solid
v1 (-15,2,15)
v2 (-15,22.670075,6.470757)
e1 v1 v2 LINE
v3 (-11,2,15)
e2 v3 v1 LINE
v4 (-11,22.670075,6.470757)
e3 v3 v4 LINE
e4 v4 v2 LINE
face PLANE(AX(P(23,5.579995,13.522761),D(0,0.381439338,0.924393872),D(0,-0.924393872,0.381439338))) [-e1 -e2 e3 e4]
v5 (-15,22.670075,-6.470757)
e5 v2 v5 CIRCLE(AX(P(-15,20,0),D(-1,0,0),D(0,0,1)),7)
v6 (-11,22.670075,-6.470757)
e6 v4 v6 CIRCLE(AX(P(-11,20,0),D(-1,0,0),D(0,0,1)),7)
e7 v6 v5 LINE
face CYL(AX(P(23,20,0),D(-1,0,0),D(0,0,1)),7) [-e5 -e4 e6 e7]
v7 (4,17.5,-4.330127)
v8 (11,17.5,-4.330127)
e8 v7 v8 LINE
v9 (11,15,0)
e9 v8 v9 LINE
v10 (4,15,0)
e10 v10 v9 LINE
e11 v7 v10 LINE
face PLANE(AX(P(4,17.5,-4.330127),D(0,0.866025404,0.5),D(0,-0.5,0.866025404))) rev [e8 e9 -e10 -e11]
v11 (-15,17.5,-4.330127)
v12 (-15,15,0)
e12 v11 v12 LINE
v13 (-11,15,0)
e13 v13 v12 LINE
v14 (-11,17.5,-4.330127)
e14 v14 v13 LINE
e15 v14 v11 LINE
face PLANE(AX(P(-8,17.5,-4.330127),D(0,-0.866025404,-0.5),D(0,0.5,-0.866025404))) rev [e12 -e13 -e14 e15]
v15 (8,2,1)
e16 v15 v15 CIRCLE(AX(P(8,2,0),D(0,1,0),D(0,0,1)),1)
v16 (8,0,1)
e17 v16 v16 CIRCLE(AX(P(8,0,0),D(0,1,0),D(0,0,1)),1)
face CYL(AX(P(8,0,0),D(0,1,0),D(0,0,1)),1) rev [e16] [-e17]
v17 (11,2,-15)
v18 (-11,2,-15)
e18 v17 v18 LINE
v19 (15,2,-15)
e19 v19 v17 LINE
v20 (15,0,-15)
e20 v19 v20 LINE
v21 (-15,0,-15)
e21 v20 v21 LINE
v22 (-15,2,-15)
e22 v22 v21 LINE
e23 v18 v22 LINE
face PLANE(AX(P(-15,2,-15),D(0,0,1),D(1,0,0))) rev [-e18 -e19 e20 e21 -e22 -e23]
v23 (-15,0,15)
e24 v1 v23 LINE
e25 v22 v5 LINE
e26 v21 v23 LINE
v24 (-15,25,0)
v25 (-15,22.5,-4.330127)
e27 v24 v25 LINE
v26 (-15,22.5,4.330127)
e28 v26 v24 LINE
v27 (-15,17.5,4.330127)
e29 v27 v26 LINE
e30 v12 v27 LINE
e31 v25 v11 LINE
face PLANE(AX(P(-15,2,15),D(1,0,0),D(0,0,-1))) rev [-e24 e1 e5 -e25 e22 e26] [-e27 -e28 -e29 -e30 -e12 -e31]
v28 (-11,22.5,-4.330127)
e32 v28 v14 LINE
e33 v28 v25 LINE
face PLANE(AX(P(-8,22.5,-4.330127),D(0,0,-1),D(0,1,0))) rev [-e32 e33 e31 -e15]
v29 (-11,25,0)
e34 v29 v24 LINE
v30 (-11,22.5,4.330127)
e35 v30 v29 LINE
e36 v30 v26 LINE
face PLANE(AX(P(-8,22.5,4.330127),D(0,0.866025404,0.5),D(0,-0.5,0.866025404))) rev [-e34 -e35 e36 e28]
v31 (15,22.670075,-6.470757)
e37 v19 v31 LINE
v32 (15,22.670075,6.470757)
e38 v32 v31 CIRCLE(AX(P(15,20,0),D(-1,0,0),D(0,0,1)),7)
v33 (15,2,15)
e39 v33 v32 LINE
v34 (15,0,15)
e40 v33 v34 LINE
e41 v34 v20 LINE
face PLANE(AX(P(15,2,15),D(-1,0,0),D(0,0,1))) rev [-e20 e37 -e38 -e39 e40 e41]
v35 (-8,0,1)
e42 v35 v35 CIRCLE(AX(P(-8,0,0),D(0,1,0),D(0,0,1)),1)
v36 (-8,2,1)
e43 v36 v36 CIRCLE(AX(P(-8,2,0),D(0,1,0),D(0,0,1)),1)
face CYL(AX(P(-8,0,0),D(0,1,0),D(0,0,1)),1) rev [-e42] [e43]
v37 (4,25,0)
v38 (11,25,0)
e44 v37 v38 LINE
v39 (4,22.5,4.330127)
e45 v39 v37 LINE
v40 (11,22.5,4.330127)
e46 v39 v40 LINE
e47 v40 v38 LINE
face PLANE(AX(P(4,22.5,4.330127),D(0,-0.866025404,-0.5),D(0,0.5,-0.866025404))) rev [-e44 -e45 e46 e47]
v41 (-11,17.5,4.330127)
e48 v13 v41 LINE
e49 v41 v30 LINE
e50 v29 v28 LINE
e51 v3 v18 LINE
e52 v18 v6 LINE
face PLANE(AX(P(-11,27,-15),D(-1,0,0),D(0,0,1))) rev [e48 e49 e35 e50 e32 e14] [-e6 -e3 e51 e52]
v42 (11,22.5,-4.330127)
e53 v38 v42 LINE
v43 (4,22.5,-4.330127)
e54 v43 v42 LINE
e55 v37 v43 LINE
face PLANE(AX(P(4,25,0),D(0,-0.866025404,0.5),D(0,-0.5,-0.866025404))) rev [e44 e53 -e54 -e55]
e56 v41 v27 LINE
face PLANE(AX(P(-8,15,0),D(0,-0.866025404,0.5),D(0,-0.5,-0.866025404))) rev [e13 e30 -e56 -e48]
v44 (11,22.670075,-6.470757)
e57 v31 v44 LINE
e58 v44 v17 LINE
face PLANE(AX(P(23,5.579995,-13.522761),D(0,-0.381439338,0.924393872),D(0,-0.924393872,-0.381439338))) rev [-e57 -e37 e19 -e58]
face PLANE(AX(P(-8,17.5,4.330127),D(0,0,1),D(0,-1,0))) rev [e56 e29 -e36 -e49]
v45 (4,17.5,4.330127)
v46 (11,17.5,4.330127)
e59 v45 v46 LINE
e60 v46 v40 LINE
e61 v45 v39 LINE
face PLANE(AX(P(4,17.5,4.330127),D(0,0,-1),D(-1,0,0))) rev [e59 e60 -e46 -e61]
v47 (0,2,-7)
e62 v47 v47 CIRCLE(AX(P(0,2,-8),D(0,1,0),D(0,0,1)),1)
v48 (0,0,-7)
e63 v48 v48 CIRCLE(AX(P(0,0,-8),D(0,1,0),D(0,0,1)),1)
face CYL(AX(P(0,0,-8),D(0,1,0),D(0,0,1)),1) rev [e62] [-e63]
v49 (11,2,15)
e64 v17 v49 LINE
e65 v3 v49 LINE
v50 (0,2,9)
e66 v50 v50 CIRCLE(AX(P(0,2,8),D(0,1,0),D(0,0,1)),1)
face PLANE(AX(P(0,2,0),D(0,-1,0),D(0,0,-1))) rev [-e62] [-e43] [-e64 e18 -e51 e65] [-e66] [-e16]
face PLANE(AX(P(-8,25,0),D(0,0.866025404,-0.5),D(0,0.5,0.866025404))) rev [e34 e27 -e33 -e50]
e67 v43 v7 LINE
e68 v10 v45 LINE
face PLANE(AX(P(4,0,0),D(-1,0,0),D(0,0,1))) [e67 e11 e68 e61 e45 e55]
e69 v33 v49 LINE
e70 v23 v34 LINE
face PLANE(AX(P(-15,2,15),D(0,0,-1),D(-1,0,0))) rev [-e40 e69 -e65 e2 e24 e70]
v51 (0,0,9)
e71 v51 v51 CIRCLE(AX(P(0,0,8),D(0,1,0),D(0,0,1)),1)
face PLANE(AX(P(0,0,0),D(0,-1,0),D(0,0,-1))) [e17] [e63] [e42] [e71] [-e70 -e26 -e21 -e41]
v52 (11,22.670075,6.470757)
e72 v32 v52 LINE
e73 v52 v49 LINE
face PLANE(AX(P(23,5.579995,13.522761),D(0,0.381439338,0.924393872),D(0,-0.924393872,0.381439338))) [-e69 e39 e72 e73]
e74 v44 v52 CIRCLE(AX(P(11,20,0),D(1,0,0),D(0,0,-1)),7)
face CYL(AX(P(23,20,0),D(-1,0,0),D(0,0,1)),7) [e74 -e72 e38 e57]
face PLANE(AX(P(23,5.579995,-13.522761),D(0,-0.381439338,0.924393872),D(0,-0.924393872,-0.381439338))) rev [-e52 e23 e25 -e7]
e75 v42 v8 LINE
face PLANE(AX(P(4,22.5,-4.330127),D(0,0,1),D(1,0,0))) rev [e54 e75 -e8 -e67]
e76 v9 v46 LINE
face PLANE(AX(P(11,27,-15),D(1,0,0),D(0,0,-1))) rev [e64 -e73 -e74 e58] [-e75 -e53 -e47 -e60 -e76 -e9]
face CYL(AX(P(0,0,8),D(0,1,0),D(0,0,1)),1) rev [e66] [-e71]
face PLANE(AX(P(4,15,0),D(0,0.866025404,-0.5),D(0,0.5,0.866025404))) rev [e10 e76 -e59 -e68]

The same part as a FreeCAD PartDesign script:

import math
import FreeCAD as App
import Part
import Sketcher
Q = App.Units.Quantity


def add_polygon(sketch, points):
    """Adds a closed chain of lines whose ends are joined by coincident constraints."""
    first, n = sketch.GeometryCount, len(points)
    for a, b in zip(points, points[1:] + points[:1]):
        sketch.addGeometry(Part.LineSegment(App.Vector(*a, 0), App.Vector(*b, 0)), False)
    for i in range(n):
        sketch.addConstraint(Sketcher.Constraint("Coincident", first + i, 2, first + (i + 1) % n, 1))

doc = App.newDocument("Part")
body = doc.addObject("PartDesign::Body", "Body")

# Sketch on XZ plane
sketch1 = body.newObject("Sketcher::SketchObject", "Sketch")
sketch1.AttachmentSupport = (doc.getObject("XZ_Plane"), [""])
sketch1.MapMode = "FlatFace"
add_polygon(sketch1, [(-15, -15), (-15, 15), (15, 15), (15, -15)])  # lines 0-3
sketch1.addConstraint([
    Sketcher.Constraint("Vertical", 0),
    Sketcher.Constraint("Horizontal", 1),
    Sketcher.Constraint("Vertical", 2),
    Sketcher.Constraint("Horizontal", 3),
    Sketcher.Constraint("Symmetric", 0, 2, 2, 2, -1, 1),
    Sketcher.Constraint("Equal", 3, 0),
    Sketcher.Constraint("DistanceX", 1, 1, 1, 2, Q("30 mm")),
])
pad1 = body.newObject("PartDesign::Pad", "Pad")
pad1.Profile = sketch1
pad1.Length = 2
pad1.Reversed = True

# Sketch on XZ plane
sketch2 = body.newObject("Sketcher::SketchObject", "Sketch001")
sketch2.AttachmentSupport = (doc.getObject("XZ_Plane"), [""])
sketch2.MapMode = "FlatFace"
sketch2.AttachmentOffset = App.Placement(App.Vector(0, 0, -2), App.Rotation())
sketch2.addGeometry([
    Part.Circle(App.Vector(0, -8, 0), App.Vector(0, 0, 1), 1),
    Part.Circle(App.Vector(8, 0, 0), App.Vector(0, 0, 1), 1),
    Part.Circle(App.Vector(0, 8, 0), App.Vector(0, 0, 1), 1),
    Part.Circle(App.Vector(-8, 0, 0), App.Vector(0, 0, 1), 1),
], False)
sketch2.addConstraint([
    Sketcher.Constraint("Equal", 0, 1),
    Sketcher.Constraint("Equal", 1, 2),
    Sketcher.Constraint("Equal", 2, 3),
    Sketcher.Constraint("Symmetric", 0, 3, 2, 3, -1, 1),
    Sketcher.Constraint("Symmetric", 1, 3, 3, 3, -1, 1),
    Sketcher.Constraint("PointOnObject", 0, 3, -2),
    Sketcher.Constraint("PointOnObject", 1, 3, -1),
    Sketcher.Constraint("Diameter", 0, Q("2 mm")),
    Sketcher.Constraint("DistanceY", 0, 3, -1, 1, Q("8 mm")),
    Sketcher.Constraint("DistanceX", -1, 1, 1, 3, Q("8 mm")),
])
pocket1 = body.newObject("PartDesign::Pocket", "Pocket")
pocket1.Profile = sketch2
pocket1.Length = 2
pocket1.Reversed = True

# Sketch on XZ plane
sketch3 = body.newObject("Sketcher::SketchObject", "Sketch002")
sketch3.AttachmentSupport = (doc.getObject("XZ_Plane"), [""])
sketch3.MapMode = "FlatFace"
sketch3.AttachmentOffset = App.Placement(App.Vector(0, 0, -2), App.Rotation())
add_polygon(sketch3, [(-15, -15), (-15, 15), (-11, 15), (-11, -15)])  # lines 0-3
add_polygon(sketch3, [(11, -15), (11, 15), (15, 15), (15, -15)])  # lines 4-7
sketch3.addConstraint([
    Sketcher.Constraint("Vertical", 0),
    Sketcher.Constraint("Horizontal", 1),
    Sketcher.Constraint("Vertical", 2),
    Sketcher.Constraint("Horizontal", 3),
    Sketcher.Constraint("Vertical", 4),
    Sketcher.Constraint("Horizontal", 5),
    Sketcher.Constraint("Vertical", 6),
    Sketcher.Constraint("Horizontal", 7),
    Sketcher.Constraint("Symmetric", 2, 2, 4, 2, -1, 1),
    Sketcher.Constraint("Symmetric", 0, 2, 6, 2, -1, 1),
    Sketcher.Constraint("Horizontal", 1, 2, 4, 2),
    Sketcher.Constraint("DistanceX", 1, 1, 1, 2, Q("4 mm")),
    Sketcher.Constraint("DistanceY", 0, 1, 0, 2, Q("30 mm")),
    Sketcher.Constraint("DistanceX", 0, 2, -1, 1, Q("15 mm")),
])
pad2 = body.newObject("PartDesign::Pad", "Pad001")
pad2.Profile = sketch3
pad2.Length = 25
pad2.Reversed = True

# Sketch on YZ plane
sketch4 = body.newObject("Sketcher::SketchObject", "Sketch003")
sketch4.AttachmentSupport = (doc.getObject("YZ_Plane"), [""])
sketch4.MapMode = "FlatFace"
sketch4.AttachmentOffset = App.Placement(App.Vector(0, 0, -15), App.Rotation())
sketch4.addGeometry([
    Part.LineSegment(App.Vector(27, 15, 0), App.Vector(27, 0, 0)),  # 0
    Part.ArcOfCircle(Part.Circle(App.Vector(20, 0, 0), App.Vector(0, 0, 1), 7), math.radians(0), math.radians(68)),  # 1
    Part.LineSegment(App.Vector(23, 6, 0), App.Vector(2, 15, 0)),  # 2
    Part.LineSegment(App.Vector(2, 15, 0), App.Vector(27, 15, 0)),  # 3
    Part.ArcOfCircle(Part.Circle(App.Vector(20, 0, 0), App.Vector(0, 0, 1), 7), math.radians(-68), math.radians(0)),  # 4
    Part.LineSegment(App.Vector(27, 0, 0), App.Vector(27, -15, 0)),  # 5
    Part.LineSegment(App.Vector(27, -15, 0), App.Vector(2, -15, 0)),  # 6
    Part.LineSegment(App.Vector(2, -15, 0), App.Vector(23, -6, 0)),  # 7
], False)
sketch4.addConstraint([
    Sketcher.Constraint("Tangent", 0, 2, 1, 1),
    Sketcher.Constraint("Tangent", 1, 2, 2, 1),
    Sketcher.Constraint("Coincident", 2, 2, 3, 1),
    Sketcher.Constraint("Coincident", 3, 2, 0, 1),
    Sketcher.Constraint("Tangent", 4, 2, 5, 1),
    Sketcher.Constraint("Coincident", 5, 2, 6, 1),
    Sketcher.Constraint("Coincident", 6, 2, 7, 1),
    Sketcher.Constraint("Tangent", 7, 2, 4, 1),
    Sketcher.Constraint("Vertical", 0),
    Sketcher.Constraint("Horizontal", 3),
    Sketcher.Constraint("Vertical", 5),
    Sketcher.Constraint("Horizontal", 6),
    Sketcher.Constraint("Coincident", 4, 3, 1, 3),
    Sketcher.Constraint("Equal", 1, 4),
    Sketcher.Constraint("Symmetric", 2, 2, 6, 2, -1),
    Sketcher.Constraint("PointOnObject", 1, 3, -1),
    Sketcher.Constraint("Radius", 1, Q("7 mm")),
    Sketcher.Constraint("DistanceX", 3, 1, 3, 2, Q("25 mm")),
    Sketcher.Constraint("DistanceY", 0, 2, 0, 1, Q("15 mm")),
    Sketcher.Constraint("DistanceX", -1, 1, 1, 3, Q("20 mm")),
])
pocket2 = body.newObject("PartDesign::Pocket", "Pocket001")
pocket2.Profile = sketch4
pocket2.Length = 38
pocket2.Reversed = True

# Sketch on YZ plane
sketch5 = body.newObject("Sketcher::SketchObject", "Sketch004")
sketch5.AttachmentSupport = (doc.getObject("YZ_Plane"), [""])
sketch5.MapMode = "FlatFace"
sketch5.AttachmentOffset = App.Placement(App.Vector(0, 0, 11), App.Rotation())
add_polygon(sketch5, [(25, 0), (22, -4), (18, -4), (15, 0), (18, 4), (22, 4)])  # lines 0-5
sketch5.addConstraint([
    Sketcher.Constraint("Horizontal", 1),
    Sketcher.Constraint("Horizontal", 4),
    Sketcher.Constraint("Symmetric", 1, 2, 3, 2, -1),
    Sketcher.Constraint("PointOnObject", 2, 2, -1),
    Sketcher.Constraint("PointOnObject", 5, 2, -1),
    Sketcher.Constraint("Parallel", 0, 3),
    Sketcher.Constraint("Parallel", 2, 5),
    Sketcher.Constraint("DistanceX", 1, 2, 1, 1, Q("5 mm")),
    Sketcher.Constraint("Angle", 0, Q("-120 deg")),
    Sketcher.Constraint("Distance", 0, Q("5 mm")),
    Sketcher.Constraint("DistanceX", -1, 1, 2, 2, Q("15 mm")),
])
pad3 = body.newObject("PartDesign::Pad", "Pad002")
pad3.Profile = sketch5
pad3.Length = 7
pad3.Reversed = True

# Sketch on YZ plane
sketch6 = body.newObject("Sketcher::SketchObject", "Sketch005")
sketch6.AttachmentSupport = (doc.getObject("YZ_Plane"), [""])
sketch6.MapMode = "FlatFace"
sketch6.AttachmentOffset = App.Placement(App.Vector(0, 0, -15), App.Rotation())
add_polygon(sketch6, [(25, 0), (22, -4), (18, -4), (15, 0), (18, 4), (22, 4)])  # lines 0-5
sketch6.addConstraint([
    Sketcher.Constraint("Horizontal", 1),
    Sketcher.Constraint("Horizontal", 4),
    Sketcher.Constraint("Symmetric", 1, 2, 3, 2, -1),
    Sketcher.Constraint("PointOnObject", 2, 2, -1),
    Sketcher.Constraint("PointOnObject", 5, 2, -1),
    Sketcher.Constraint("Parallel", 0, 3),
    Sketcher.Constraint("Parallel", 2, 5),
    Sketcher.Constraint("DistanceX", 1, 2, 1, 1, Q("5 mm")),
    Sketcher.Constraint("Angle", 0, Q("-120 deg")),
    Sketcher.Constraint("Distance", 0, Q("5 mm")),
    Sketcher.Constraint("DistanceX", -1, 1, 2, 2, Q("15 mm")),
])
pocket3 = body.newObject("PartDesign::Pocket", "Pocket002")
pocket3.Profile = sketch6
pocket3.Length = 7
pocket3.Reversed = True

doc.recompute()
